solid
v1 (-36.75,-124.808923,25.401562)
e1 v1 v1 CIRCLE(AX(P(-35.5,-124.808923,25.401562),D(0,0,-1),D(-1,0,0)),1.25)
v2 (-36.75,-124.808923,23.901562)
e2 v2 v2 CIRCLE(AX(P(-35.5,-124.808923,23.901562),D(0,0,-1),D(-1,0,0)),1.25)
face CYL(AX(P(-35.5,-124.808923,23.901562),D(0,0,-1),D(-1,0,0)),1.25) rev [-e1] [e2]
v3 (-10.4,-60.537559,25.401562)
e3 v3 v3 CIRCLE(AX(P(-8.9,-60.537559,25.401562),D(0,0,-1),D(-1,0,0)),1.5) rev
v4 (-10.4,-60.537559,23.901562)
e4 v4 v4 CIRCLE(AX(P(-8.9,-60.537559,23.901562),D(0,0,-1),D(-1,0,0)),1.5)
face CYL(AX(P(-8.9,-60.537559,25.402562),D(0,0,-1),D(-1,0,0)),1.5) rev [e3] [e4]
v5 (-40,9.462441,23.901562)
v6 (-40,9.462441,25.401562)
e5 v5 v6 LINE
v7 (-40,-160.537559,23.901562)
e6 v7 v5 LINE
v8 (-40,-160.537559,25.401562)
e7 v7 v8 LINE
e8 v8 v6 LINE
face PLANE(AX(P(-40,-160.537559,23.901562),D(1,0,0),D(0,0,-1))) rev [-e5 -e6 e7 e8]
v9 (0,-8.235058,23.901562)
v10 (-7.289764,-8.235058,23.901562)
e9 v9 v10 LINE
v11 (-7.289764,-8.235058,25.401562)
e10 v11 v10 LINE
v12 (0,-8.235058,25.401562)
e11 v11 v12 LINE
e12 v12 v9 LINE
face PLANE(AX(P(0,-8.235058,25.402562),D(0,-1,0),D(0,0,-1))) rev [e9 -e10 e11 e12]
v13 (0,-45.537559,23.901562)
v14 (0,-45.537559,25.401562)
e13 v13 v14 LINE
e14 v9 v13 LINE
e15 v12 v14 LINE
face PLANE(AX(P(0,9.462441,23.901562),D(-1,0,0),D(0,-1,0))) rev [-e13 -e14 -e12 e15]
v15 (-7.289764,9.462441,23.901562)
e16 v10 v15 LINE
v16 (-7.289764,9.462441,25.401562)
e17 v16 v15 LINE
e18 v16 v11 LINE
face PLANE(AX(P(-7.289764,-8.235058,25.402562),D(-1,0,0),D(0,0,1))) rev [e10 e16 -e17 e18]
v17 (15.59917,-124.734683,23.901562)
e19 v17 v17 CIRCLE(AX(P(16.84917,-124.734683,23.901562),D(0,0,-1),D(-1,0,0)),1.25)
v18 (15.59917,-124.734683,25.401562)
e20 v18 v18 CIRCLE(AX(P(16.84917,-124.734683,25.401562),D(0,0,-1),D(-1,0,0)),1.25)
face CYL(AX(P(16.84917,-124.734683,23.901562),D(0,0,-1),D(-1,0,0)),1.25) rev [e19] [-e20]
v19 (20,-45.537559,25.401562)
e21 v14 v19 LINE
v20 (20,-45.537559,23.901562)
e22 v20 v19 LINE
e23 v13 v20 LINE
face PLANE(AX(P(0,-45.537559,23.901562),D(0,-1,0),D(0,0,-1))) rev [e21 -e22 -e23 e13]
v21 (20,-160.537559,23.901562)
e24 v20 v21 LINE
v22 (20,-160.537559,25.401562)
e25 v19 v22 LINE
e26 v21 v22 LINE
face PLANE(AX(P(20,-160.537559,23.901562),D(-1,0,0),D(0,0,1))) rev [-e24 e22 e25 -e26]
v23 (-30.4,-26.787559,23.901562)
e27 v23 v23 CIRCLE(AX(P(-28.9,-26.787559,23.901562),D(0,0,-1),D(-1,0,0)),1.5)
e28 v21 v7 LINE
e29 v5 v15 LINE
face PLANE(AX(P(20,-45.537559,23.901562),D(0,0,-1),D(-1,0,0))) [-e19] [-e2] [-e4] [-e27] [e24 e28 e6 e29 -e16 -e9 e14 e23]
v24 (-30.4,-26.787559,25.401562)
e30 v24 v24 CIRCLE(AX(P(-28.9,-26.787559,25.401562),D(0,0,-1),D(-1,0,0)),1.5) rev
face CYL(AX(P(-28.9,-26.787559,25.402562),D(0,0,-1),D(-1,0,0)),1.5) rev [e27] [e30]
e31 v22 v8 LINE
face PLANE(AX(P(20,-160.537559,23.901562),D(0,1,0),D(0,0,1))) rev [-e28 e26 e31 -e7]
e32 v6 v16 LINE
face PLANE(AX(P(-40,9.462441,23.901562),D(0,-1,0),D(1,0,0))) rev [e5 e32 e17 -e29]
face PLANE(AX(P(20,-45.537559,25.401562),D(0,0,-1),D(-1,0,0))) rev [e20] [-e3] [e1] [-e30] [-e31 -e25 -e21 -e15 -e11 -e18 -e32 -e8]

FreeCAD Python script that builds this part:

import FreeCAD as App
import Part
import Sketcher


def add_polygon(sketch, points):
    """Adds a closed chain of lines whose ends are joined by coincident constraints."""
    first, n = sketch.GeometryCount, len(points)
    for a, b in zip(points, points[1:] + points[:1]):
        sketch.addGeometry(Part.LineSegment(App.Vector(*a, 0), App.Vector(*b, 0)), False)
    for i in range(n):
        sketch.addConstraint(Sketcher.Constraint("Coincident", first + i, 2, first + (i + 1) % n, 1))

doc = App.newDocument("Part")
body = doc.addObject("PartDesign::Body", "Body")

sketch1 = doc.addObject("Sketcher::SketchObject", "Sketch")
body.addObject(sketch1)
sketch1.AttachmentSupport = (doc.XY_Plane, [""])
sketch1.MapMode = "FlatFace"
sketch1.AttachmentOffset = App.Placement(App.Vector(0, 0, 25.401562), App.Rotation())
add_polygon(sketch1, [(-40, 9), (0, 9), (0, -46), (20, -46), (20, -161), (-40, -161)])
sketch1.addConstraint([
    Sketcher.Constraint("Horizontal", 0),
    Sketcher.Constraint("Vertical", 1),
    Sketcher.Constraint("Horizontal", 2),
    Sketcher.Constraint("Vertical", 3),
    Sketcher.Constraint("Horizontal", 4),
    Sketcher.Constraint("Vertical", 5),
    Sketcher.Constraint("PointOnObject", 0, 2, -2),
    Sketcher.Constraint("DistanceX", 0, 1, 0, 2, 40.0),
    Sketcher.Constraint("DistanceX", 2, 1, 2, 2, 20.0),
    Sketcher.Constraint("DistanceY", 1, 2, 1, 1, 55.0),
    Sketcher.Constraint("DistanceY", 3, 2, 3, 1, 115.0),
    Sketcher.Constraint("DistanceY", -1, 1, 0, 2, 9.462441),
])
pad1 = doc.addObject("PartDesign::Pad", "Pad")
body.addObject(pad1)
pad1.Profile = sketch1
pad1.Length = 1.5
pad1.Reversed = True

sketch2 = doc.addObject("Sketcher::SketchObject", "Sketch001")
body.addObject(sketch2)
sketch2.AttachmentSupport = (doc.XY_Plane, [""])
sketch2.MapMode = "FlatFace"
sketch2.AttachmentOffset = App.Placement(App.Vector(0, 0, 23.901562), App.Rotation())
sketch2.addGeometry(Part.Circle(App.Vector(-28.9, -26.8, 0), App.Vector(0, 0, 1), 1.5), False)
sketch2.addConstraint([
    Sketcher.Constraint("Diameter", 0, 3.0),
    Sketcher.Constraint("DistanceX", 0, 3, -1, 1, 28.9),
    Sketcher.Constraint("DistanceY", 0, 3, -1, 1, 26.787559),
])
pocket1 = doc.addObject("PartDesign::Pocket", "Pocket")
body.addObject(pocket1)
pocket1.Profile = sketch2
pocket1.Type = "UpToFirst"
pocket1.Reversed = True

sketch3 = doc.addObject("Sketcher::SketchObject", "Sketch002")
body.addObject(sketch3)
sketch3.AttachmentSupport = (doc.XY_Plane, [""])
sketch3.MapMode = "FlatFace"
sketch3.AttachmentOffset = App.Placement(App.Vector(0, 0, 23.901562), App.Rotation())
sketch3.addGeometry([
    Part.Circle(App.Vector(16.8, -124.7, 0), App.Vector(0, 0, 1), 1.2),
    Part.Circle(App.Vector(-35.5, -124.8, 0), App.Vector(0, 0, 1), 1.2),
], False)
sketch3.addConstraint([
    Sketcher.Constraint("Equal", 0, 1),
    Sketcher.Constraint("Diameter", 0, 2.5),
    Sketcher.Constraint("DistanceX", 1, 3, -1, 1, 35.5),
    Sketcher.Constraint("DistanceX", -1, 1, 0, 3, 16.84917),
    Sketcher.Constraint("DistanceY", 1, 3, 0, 3, 0.07424),
    Sketcher.Constraint("DistanceY", 0, 3, -1, 1, 124.734683),
])
doc.recompute()
hole = doc.addObject("PartDesign::Hole", "Hole")
body.addObject(hole)
hole.Profile = sketch3
hole.ThreadType = "None"
hole.Diameter = 2.5
hole.DepthType = "ThroughAll"
hole.Reversed = True

sketch4 = doc.addObject("Sketcher::SketchObject", "Sketch003")
body.addObject(sketch4)
sketch4.AttachmentSupport = (doc.XY_Plane, [""])
sketch4.MapMode = "FlatFace"
sketch4.AttachmentOffset = App.Placement(App.Vector(0, 0, 23.901562), App.Rotation())
sketch4.addGeometry(Part.Circle(App.Vector(-8.9, -60.5, 0), App.Vector(0, 0, 1), 1.5), False)
sketch4.addConstraint([
    Sketcher.Constraint("Diameter", 0, 3.0),
    Sketcher.Constraint("DistanceX", 0, 3, -1, 1, 8.9),
    Sketcher.Constraint("DistanceY", 0, 3, -1, 1, 60.537559),
])
pocket2 = doc.addObject("PartDesign::Pocket", "Pocket001")
body.addObject(pocket2)
pocket2.Profile = sketch4
pocket2.Type = "UpToFirst"
pocket2.Reversed = True

sketch5 = doc.addObject("Sketcher::SketchObject", "Sketch004")
body.addObject(sketch5)
sketch5.AttachmentSupport = (doc.XY_Plane, [""])
sketch5.MapMode = "FlatFace"
sketch5.AttachmentOffset = App.Placement(App.Vector(0, 0, 23.901562), App.Rotation())
add_polygon(sketch5, [(0, 9), (0, -8), (-7, -8), (-7, 9)])
sketch5.addConstraint([
    Sketcher.Constraint("Vertical", 0),
    Sketcher.Constraint("Horizontal", 1),
    Sketcher.Constraint("Vertical", 2),
    Sketcher.Constraint("Horizontal", 3),
    Sketcher.Constraint("PointOnObject", 0, 2, -2),
    Sketcher.Constraint("DistanceY", 0, 2, 0, 1, 17.697499),
    Sketcher.Constraint("DistanceX", 1, 2, 1, 1, 7.289764),
    Sketcher.Constraint("DistanceY", -1, 1, 2, 2, 9.462441),
])
pocket3 = doc.addObject("PartDesign::Pocket", "Pocket002")
body.addObject(pocket3)
pocket3.Profile = sketch5
pocket3.Type = "UpToFirst"
pocket3.Reversed = True

doc.recompute()
